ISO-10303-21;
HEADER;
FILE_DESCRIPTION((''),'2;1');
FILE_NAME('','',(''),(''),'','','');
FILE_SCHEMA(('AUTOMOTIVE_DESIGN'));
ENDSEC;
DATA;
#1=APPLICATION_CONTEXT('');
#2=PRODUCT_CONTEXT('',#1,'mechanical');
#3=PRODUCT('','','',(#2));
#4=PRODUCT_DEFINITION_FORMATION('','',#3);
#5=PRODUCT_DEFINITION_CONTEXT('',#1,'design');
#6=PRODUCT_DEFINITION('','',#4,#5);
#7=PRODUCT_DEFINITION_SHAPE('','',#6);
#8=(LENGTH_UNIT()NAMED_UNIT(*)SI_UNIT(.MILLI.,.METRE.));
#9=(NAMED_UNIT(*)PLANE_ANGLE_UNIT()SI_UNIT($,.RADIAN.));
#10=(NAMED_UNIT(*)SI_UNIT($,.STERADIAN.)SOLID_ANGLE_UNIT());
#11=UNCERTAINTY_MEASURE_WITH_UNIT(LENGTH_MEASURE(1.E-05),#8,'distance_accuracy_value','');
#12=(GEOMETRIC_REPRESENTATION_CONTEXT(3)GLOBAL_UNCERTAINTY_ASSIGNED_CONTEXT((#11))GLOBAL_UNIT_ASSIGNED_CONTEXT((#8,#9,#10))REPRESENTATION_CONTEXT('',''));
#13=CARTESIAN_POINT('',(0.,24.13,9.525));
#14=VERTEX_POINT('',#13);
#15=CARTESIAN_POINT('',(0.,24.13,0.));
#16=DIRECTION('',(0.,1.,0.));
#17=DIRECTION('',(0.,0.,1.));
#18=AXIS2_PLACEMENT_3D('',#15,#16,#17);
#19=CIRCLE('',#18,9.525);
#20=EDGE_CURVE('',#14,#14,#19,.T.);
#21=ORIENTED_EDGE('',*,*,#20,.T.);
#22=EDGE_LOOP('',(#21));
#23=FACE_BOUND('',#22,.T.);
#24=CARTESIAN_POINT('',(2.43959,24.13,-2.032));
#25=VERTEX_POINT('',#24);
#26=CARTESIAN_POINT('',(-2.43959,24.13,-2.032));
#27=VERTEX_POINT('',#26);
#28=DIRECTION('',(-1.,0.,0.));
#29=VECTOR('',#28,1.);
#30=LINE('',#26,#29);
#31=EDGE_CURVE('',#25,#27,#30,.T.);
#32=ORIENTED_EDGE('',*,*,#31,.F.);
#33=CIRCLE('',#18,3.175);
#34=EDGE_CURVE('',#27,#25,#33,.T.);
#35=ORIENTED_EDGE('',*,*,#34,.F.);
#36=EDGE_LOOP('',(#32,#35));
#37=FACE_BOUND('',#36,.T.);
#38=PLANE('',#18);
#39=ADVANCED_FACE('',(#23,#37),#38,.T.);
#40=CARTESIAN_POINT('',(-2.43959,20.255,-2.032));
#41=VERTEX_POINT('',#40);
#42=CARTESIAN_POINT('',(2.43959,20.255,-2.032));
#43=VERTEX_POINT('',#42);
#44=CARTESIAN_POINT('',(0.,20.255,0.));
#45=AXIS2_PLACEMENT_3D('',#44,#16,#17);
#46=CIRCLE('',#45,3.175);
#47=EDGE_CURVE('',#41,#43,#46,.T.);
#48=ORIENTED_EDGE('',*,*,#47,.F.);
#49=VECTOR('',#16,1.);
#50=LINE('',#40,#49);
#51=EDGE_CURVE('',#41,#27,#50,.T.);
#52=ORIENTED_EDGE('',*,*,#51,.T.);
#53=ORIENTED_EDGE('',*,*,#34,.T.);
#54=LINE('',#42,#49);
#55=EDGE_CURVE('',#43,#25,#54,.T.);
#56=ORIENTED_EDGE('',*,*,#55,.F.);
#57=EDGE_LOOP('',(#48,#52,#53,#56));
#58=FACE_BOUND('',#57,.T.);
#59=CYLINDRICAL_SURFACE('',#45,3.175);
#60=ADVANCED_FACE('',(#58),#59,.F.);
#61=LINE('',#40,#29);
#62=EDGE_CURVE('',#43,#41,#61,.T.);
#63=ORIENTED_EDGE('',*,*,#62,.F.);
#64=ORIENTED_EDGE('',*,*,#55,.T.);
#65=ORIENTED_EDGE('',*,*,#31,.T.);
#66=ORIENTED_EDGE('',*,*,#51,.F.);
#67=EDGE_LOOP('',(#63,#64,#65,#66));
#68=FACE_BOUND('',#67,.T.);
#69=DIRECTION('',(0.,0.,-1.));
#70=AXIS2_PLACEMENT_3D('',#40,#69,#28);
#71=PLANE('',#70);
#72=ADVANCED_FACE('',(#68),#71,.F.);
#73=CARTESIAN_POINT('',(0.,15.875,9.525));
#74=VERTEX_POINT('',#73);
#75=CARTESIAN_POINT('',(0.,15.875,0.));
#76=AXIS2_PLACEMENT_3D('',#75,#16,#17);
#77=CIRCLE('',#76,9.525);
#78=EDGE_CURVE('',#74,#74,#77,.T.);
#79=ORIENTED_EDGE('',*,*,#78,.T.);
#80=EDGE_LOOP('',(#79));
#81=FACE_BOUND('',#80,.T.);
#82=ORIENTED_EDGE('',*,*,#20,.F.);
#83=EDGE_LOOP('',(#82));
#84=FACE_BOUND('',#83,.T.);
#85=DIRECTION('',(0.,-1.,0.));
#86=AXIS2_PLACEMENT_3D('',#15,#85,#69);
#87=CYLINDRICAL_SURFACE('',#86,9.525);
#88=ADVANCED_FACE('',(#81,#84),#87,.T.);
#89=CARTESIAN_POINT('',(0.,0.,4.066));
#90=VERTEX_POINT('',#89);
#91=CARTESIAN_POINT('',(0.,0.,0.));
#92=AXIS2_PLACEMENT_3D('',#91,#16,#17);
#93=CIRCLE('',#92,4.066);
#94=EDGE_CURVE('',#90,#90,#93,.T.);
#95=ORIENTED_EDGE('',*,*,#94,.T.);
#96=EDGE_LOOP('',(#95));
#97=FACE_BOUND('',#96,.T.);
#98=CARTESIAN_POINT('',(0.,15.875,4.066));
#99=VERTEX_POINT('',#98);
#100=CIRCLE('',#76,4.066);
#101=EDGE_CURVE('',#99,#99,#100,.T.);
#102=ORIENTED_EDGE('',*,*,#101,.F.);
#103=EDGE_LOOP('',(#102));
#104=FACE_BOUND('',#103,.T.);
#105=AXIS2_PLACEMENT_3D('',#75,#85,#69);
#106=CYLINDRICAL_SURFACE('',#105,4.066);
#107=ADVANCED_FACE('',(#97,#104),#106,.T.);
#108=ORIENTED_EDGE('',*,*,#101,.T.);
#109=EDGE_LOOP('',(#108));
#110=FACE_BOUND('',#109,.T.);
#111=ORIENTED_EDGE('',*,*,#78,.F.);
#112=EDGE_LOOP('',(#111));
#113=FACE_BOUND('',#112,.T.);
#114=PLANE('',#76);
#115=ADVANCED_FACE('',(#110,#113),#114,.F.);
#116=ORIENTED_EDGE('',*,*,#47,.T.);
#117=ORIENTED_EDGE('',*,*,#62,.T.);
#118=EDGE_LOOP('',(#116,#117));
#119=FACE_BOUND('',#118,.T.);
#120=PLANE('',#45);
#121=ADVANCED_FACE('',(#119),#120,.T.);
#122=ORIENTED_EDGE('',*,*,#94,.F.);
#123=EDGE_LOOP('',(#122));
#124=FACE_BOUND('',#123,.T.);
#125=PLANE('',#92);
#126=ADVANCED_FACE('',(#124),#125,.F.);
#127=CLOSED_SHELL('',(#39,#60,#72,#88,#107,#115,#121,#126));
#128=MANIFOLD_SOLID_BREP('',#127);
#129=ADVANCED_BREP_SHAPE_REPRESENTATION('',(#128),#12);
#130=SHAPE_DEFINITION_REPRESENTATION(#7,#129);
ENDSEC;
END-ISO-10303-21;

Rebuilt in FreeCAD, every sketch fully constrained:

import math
import FreeCAD as App
import Part
import Sketcher
from FreeCAD import Vector
Q = App.Units.Quantity

doc = App.newDocument("Part")
body = doc.addObject("PartDesign::Body", "Body")

# Sketch on XZ plane
sketch1 = body.newObject("Sketcher::SketchObject", "Sketch")
sketch1.AttachmentSupport = (doc.getObject("XZ_Plane"), [""])
sketch1.MapMode = "FlatFace"
sketch1.addGeometry(Part.Circle(Vector(0, 0, 0), Vector(0, 0, 1), 4.1), False)
sketch1.addConstraint([
    Sketcher.Constraint("Coincident", 0, 3, -1, 1),
    Sketcher.Constraint("Diameter", 0, 8.132),
])
pad1 = body.newObject("PartDesign::Pad", "Pad")
pad1.Profile = sketch1
pad1.Length = Q("0.625 in")
pad1.Reversed = True

# Sketch on XZ plane
sketch2 = body.newObject("Sketcher::SketchObject", "Sketch001")
sketch2.AttachmentSupport = (doc.getObject("XZ_Plane"), [""])
sketch2.MapMode = "FlatFace"
sketch2.AttachmentOffset = App.Placement(Vector(0, 0, -0.625 * 25.4), App.Rotation())
sketch2.addGeometry(Part.Circle(Vector(0, 0, 0), Vector(0, 0, 1), 10), False)
sketch2.addConstraint([
    Sketcher.Constraint("Coincident", 0, 3, -1, 1),
    Sketcher.Constraint("Diameter", 0, Q("0.75 in")),
])
pad2 = body.newObject("PartDesign::Pad", "Pad001")
pad2.Profile = sketch2
pad2.Length = Q("0.325 in")
pad2.Reversed = True

# Sketch on XZ plane
sketch3 = body.newObject("Sketcher::SketchObject", "Sketch002")
sketch3.AttachmentSupport = (doc.getObject("XZ_Plane"), [""])
sketch3.MapMode = "FlatFace"
sketch3.AttachmentOffset = App.Placement(Vector(0, 0, -0.95 * 25.4), App.Rotation())
sketch3.addGeometry([
    Part.LineSegment(Vector(2.4, -2, 0), Vector(-2.4, -2, 0)),
    Part.ArcOfCircle(Part.Circle(Vector(0, 0, 0), Vector(0, 0, 1), 3.2), math.radians(-40), math.radians(220)),
], False)
sketch3.addConstraint([
    Sketcher.Constraint("Coincident", 0, 1, 1, 1),
    Sketcher.Constraint("Coincident", 1, 2, 0, 2),
    Sketcher.Constraint("Horizontal", 0),
    Sketcher.Constraint("Coincident", 1, 3, -1, 1),
    Sketcher.Constraint("Radius", 1, Q("0.125 in")),
    Sketcher.Constraint("DistanceY", 0, 1, -1, 1, Q("0.08 in")),
])
pocket1 = body.newObject("PartDesign::Pocket", "Pocket")
pocket1.Profile = sketch3
pocket1.Length = 3.875
pocket1.Reversed = True

doc.recompute()
